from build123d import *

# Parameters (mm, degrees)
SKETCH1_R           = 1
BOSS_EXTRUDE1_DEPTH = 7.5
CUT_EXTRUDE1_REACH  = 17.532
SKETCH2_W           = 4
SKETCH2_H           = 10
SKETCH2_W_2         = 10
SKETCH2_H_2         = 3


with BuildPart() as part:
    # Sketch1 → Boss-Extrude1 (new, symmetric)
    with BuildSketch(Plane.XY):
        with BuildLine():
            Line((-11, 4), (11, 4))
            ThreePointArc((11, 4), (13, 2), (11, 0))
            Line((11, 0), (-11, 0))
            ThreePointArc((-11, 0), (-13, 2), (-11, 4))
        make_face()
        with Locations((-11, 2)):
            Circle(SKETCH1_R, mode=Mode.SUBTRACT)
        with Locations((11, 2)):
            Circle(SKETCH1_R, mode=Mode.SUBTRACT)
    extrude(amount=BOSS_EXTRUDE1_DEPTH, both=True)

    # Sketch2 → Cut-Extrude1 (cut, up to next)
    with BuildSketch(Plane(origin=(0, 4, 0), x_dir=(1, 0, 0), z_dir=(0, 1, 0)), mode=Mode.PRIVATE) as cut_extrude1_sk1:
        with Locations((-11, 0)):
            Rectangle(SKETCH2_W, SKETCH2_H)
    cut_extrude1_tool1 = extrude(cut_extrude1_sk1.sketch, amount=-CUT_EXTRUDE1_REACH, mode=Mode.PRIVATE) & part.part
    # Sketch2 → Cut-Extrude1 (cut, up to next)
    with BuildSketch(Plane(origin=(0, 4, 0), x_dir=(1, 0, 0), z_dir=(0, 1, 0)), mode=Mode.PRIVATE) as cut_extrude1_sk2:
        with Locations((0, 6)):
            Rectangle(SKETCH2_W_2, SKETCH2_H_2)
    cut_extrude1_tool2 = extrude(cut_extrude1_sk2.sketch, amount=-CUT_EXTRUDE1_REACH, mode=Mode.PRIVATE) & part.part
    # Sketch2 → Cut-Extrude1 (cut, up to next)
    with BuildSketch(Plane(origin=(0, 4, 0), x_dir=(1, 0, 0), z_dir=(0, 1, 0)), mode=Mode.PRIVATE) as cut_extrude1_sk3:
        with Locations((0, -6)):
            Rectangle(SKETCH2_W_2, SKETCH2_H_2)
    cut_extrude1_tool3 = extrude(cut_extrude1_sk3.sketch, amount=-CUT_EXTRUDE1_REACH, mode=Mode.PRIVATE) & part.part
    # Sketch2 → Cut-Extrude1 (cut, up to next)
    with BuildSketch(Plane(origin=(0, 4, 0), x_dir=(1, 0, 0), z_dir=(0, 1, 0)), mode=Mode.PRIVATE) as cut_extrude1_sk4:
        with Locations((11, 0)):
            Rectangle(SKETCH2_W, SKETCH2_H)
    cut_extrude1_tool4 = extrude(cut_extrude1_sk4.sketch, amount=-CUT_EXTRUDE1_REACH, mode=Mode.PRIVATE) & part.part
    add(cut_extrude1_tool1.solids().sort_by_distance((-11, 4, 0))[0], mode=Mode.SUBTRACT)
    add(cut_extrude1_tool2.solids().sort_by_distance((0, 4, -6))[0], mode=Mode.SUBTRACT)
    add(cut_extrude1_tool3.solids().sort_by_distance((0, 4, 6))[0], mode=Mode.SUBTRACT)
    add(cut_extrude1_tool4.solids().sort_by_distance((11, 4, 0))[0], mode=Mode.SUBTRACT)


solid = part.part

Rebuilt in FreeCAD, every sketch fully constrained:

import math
import FreeCAD as App
import Part
import Sketcher
from FreeCAD import Vector
Q = App.Units.Quantity

doc = App.newDocument("Part")
body = doc.addObject("PartDesign::Body", "Body")

# Sketch on XY plane
sketch1 = body.newObject("Sketcher::SketchObject", "Sketch")
sketch1.AttachmentSupport = (doc.getObject("XY_Plane"), [""])
sketch1.MapMode = "FlatFace"
sketch1.addGeometry([
    Part.LineSegment(Vector(11, 4, 0), Vector(-11, 4, 0)),  # 0
    Part.ArcOfCircle(Part.Circle(Vector(-11, 2, 0), Vector(0, 0, 1), 2), math.radians(90), math.radians(270)),  # 1
    Part.LineSegment(Vector(-11, 0, 0), Vector(11, 0, 0)),  # 2
    Part.ArcOfCircle(Part.Circle(Vector(11, 2, 0), Vector(0, 0, 1), 2), math.radians(-90), math.radians(90)),  # 3
    Part.Circle(Vector(11, 2, 0), Vector(0, 0, 1), 1),  # 4
    Part.Circle(Vector(-11, 2, 0), Vector(0, 0, 1), 1),  # 5
], False)
sketch1.addConstraint([
    Sketcher.Constraint("Tangent", 0, 2, 1, 1),
    Sketcher.Constraint("Tangent", 1, 2, 2, 1),
    Sketcher.Constraint("Tangent", 2, 2, 3, 1),
    Sketcher.Constraint("Tangent", 3, 2, 0, 1),
    Sketcher.Constraint("Horizontal", 0),
    Sketcher.Constraint("Horizontal", 2),
    Sketcher.Constraint("Coincident", 4, 3, 3, 3),
    Sketcher.Constraint("Coincident", 5, 3, 1, 3),
    Sketcher.Constraint("Equal", 4, 5),
    Sketcher.Constraint("Symmetric", 1, 2, 2, 2, -1, 1),
    Sketcher.Constraint("Diameter", 4, Q("2 mm")),
    Sketcher.Constraint("Radius", 1, Q("2 mm")),
    Sketcher.Constraint("DistanceX", 0, 2, 0, 1, Q("22 mm")),
])
pad1 = body.newObject("PartDesign::Pad", "Pad")
pad1.Profile = sketch1
pad1.Length = 15
pad1.Midplane = True

# Sketch on XZ plane
sketch2 = body.newObject("Sketcher::SketchObject", "Sketch001")
sketch2.AttachmentSupport = (doc.getObject("XZ_Plane"), [""])
sketch2.MapMode = "FlatFace"
sketch2.AttachmentOffset = App.Placement(Vector(0, 0, -4), App.Rotation())
sketch2.addGeometry([
    Part.LineSegment(Vector(-13, -5, 0), Vector(-13, 5, 0)),
    Part.LineSegment(Vector(-13, 5, 0), Vector(-9, 5, 0)),
    Part.LineSegment(Vector(-9, 5, 0), Vector(-9, -5, 0)),
    Part.LineSegment(Vector(-9, -5, 0), Vector(-13, -5, 0)),
], False)
sketch2.addConstraint([
    Sketcher.Constraint("Coincident", 0, 2, 1, 1),
    Sketcher.Constraint("Coincident", 1, 2, 2, 1),
    Sketcher.Constraint("Coincident", 2, 2, 3, 1),
    Sketcher.Constraint("Coincident", 3, 2, 0, 1),
    Sketcher.Constraint("Vertical", 0),
    Sketcher.Constraint("Horizontal", 1),
    Sketcher.Constraint("Vertical", 2),
    Sketcher.Constraint("Horizontal", 3),
    Sketcher.Constraint("DistanceX", 1, 1, 1, 2, Q("4 mm")),
    Sketcher.Constraint("DistanceY", 0, 1, 0, 2, Q("10 mm")),
    Sketcher.Constraint("DistanceX", 0, 2, -1, 1, Q("13 mm")),
    Sketcher.Constraint("DistanceY", -1, 1, 0, 2, Q("5 mm")),
])
pocket1 = body.newObject("PartDesign::Pocket", "Pocket")
pocket1.Profile = sketch2
pocket1.Type = "UpToFirst"
pocket1.Reversed = True

# Sketch on XZ plane
sketch3 = body.newObject("Sketcher::SketchObject", "Sketch002")
sketch3.AttachmentSupport = (doc.getObject("XZ_Plane"), [""])
sketch3.MapMode = "FlatFace"
sketch3.AttachmentOffset = App.Placement(Vector(0, 0, -4), App.Rotation())
sketch3.addGeometry([
    Part.LineSegment(Vector(-5, -7.5, 0), Vector(-5, -4.5, 0)),
    Part.LineSegment(Vector(-5, -4.5, 0), Vector(5, -4.5, 0)),
    Part.LineSegment(Vector(5, -4.5, 0), Vector(5, -7.5, 0)),
    Part.LineSegment(Vector(5, -7.5, 0), Vector(-5, -7.5, 0)),
], False)
sketch3.addConstraint([
    Sketcher.Constraint("Coincident", 0, 2, 1, 1),
    Sketcher.Constraint("Coincident", 1, 2, 2, 1),
    Sketcher.Constraint("Coincident", 2, 2, 3, 1),
    Sketcher.Constraint("Coincident", 3, 2, 0, 1),
    Sketcher.Constraint("Vertical", 0),
    Sketcher.Constraint("Horizontal", 1),
    Sketcher.Constraint("Vertical", 2),
    Sketcher.Constraint("Horizontal", 3),
    Sketcher.Constraint("DistanceX", 1, 1, 1, 2, Q("10 mm")),
    Sketcher.Constraint("DistanceY", 0, 1, 0, 2, Q("3 mm")),
    Sketcher.Constraint("DistanceX", 0, 2, -1, 1, Q("5 mm")),
    Sketcher.Constraint("DistanceY", 0, 2, -1, 1, Q("4.5 mm")),
])
pocket2 = body.newObject("PartDesign::Pocket", "Pocket001")
pocket2.Profile = sketch3
pocket2.Type = "UpToFirst"
pocket2.Reversed = True

# Sketch on XZ plane
sketch4 = body.newObject("Sketcher::SketchObject", "Sketch003")
sketch4.AttachmentSupport = (doc.getObject("XZ_Plane"), [""])
sketch4.MapMode = "FlatFace"
sketch4.AttachmentOffset = App.Placement(Vector(0, 0, -4), App.Rotation())
sketch4.addGeometry([
    Part.LineSegment(Vector(-5, 4.5, 0), Vector(-5, 7.5, 0)),
    Part.LineSegment(Vector(-5, 7.5, 0), Vector(5, 7.5, 0)),
    Part.LineSegment(Vector(5, 7.5, 0), Vector(5, 4.5, 0)),
    Part.LineSegment(Vector(5, 4.5, 0), Vector(-5, 4.5, 0)),
], False)
sketch4.addConstraint([
    Sketcher.Constraint("Coincident", 0, 2, 1, 1),
    Sketcher.Constraint("Coincident", 1, 2, 2, 1),
    Sketcher.Constraint("Coincident", 2, 2, 3, 1),
    Sketcher.Constraint("Coincident", 3, 2, 0, 1),
    Sketcher.Constraint("Vertical", 0),
    Sketcher.Constraint("Horizontal", 1),
    Sketcher.Constraint("Vertical", 2),
    Sketcher.Constraint("Horizontal", 3),
    Sketcher.Constraint("DistanceX", 1, 1, 1, 2, Q("10 mm")),
    Sketcher.Constraint("DistanceY", 0, 1, 0, 2, Q("3 mm")),
    Sketcher.Constraint("DistanceX", 0, 2, -1, 1, Q("5 mm")),
    Sketcher.Constraint("DistanceY", -1, 1, 0, 2, Q("7.5 mm")),
])
pocket3 = body.newObject("PartDesign::Pocket", "Pocket002")
pocket3.Profile = sketch4
pocket3.Type = "UpToFirst"
pocket3.Reversed = True

# Sketch on XZ plane
sketch5 = body.newObject("Sketcher::SketchObject", "Sketch004")
sketch5.AttachmentSupport = (doc.getObject("XZ_Plane"), [""])
sketch5.MapMode = "FlatFace"
sketch5.AttachmentOffset = App.Placement(Vector(0, 0, -4), App.Rotation())
sketch5.addGeometry([
    Part.LineSegment(Vector(9, -5, 0), Vector(9, 5, 0)),
    Part.LineSegment(Vector(9, 5, 0), Vector(13, 5, 0)),
    Part.LineSegment(Vector(13, 5, 0), Vector(13, -5, 0)),
    Part.LineSegment(Vector(13, -5, 0), Vector(9, -5, 0)),
], False)
sketch5.addConstraint([
    Sketcher.Constraint("Coincident", 0, 2, 1, 1),
    Sketcher.Constraint("Coincident", 1, 2, 2, 1),
    Sketcher.Constraint("Coincident", 2, 2, 3, 1),
    Sketcher.Constraint("Coincident", 3, 2, 0, 1),
    Sketcher.Constraint("Vertical", 0),
    Sketcher.Constraint("Horizontal", 1),
    Sketcher.Constraint("Vertical", 2),
    Sketcher.Constraint("Horizontal", 3),
    Sketcher.Constraint("DistanceX", 1, 1, 1, 2, Q("4 mm")),
    Sketcher.Constraint("DistanceY", 0, 1, 0, 2, Q("10 mm")),
    Sketcher.Constraint("DistanceX", -1, 1, 0, 2, Q("9 mm")),
    Sketcher.Constraint("DistanceY", -1, 1, 0, 2, Q("5 mm")),
])
pocket4 = body.newObject("PartDesign::Pocket", "Pocket003")
pocket4.Profile = sketch5
pocket4.Type = "UpToFirst"
pocket4.Reversed = True

doc.recompute()
